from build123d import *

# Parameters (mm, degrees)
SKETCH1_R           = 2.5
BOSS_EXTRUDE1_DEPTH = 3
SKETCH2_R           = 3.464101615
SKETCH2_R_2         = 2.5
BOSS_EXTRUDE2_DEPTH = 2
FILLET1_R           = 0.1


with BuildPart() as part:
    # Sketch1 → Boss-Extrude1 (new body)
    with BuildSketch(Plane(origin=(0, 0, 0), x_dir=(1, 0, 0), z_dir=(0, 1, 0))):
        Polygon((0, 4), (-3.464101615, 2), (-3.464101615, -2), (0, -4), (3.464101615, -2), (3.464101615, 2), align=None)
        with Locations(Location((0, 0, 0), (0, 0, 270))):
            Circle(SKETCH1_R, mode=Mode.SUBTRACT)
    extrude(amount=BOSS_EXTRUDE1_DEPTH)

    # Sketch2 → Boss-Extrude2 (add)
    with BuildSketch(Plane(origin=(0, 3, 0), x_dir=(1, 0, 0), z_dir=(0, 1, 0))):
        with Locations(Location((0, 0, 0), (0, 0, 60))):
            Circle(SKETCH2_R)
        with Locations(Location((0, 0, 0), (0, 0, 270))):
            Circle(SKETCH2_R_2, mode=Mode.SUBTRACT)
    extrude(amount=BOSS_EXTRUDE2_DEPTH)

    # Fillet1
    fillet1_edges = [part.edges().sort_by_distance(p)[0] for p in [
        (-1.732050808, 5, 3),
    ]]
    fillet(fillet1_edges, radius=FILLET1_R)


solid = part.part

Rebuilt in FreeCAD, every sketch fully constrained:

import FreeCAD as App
import Part
import Sketcher
Q = App.Units.Quantity


def edges_at(feature, points):
    """Names of the edges that pass closest to the given points."""
    edges = feature.Shape.Edges
    near = lambda p: min(range(len(edges)), key=lambda i: edges[i].distToShape(Part.Vertex(*p))[0])
    return sorted({f"Edge{near(p) + 1}" for p in points})

doc = App.newDocument("Part")
params = doc.addObject("Spreadsheet::Sheet", "Params")
for row, (alias, value) in enumerate([
    ("sketch1_diameter", "5 mm"),
    ("sketch1_height", "4 mm"),
    ("sketch1_length", "4 mm"),
    ("pad1_length", "3 mm"),
    ("sketch2_diameter", "5 mm"),
    ("pad2_length", "2 mm"),
    ("fillet_radius", "0.1 mm"),
], start=1):
    params.set(f"A{row}", alias)
    params.set(f"B{row}", "=" + value)
    params.setAlias(f"B{row}", alias)

body = doc.addObject("PartDesign::Body", "Body")

sketch1 = body.newObject("Sketcher::SketchObject", "Sketch")
sketch1.AttachmentSupport = (doc.getObject("XZ_Plane"), [""])
sketch1.MapMode = "FlatFace"
sketch1.addGeometry([
    Part.LineSegment(App.Vector(0, -4, 0), App.Vector(-3.5, -2, 0)),
    Part.LineSegment(App.Vector(-3.5, -2, 0), App.Vector(-3.5, 2, 0)),
    Part.LineSegment(App.Vector(-3.5, 2, 0), App.Vector(0, 4, 0)),
    Part.LineSegment(App.Vector(0, 4, 0), App.Vector(3.5, 2, 0)),
    Part.LineSegment(App.Vector(3.5, 2, 0), App.Vector(3.5, -2, 0)),
    Part.LineSegment(App.Vector(3.5, -2, 0), App.Vector(0, -4, 0)),
    Part.Circle(App.Vector(0, 0, 0), App.Vector(0, 0, 1), 2.5),
], False)
sketch1.addConstraint([
    Sketcher.Constraint("Coincident", 0, 2, 1, 1),
    Sketcher.Constraint("Coincident", 1, 2, 2, 1),
    Sketcher.Constraint("Coincident", 2, 2, 3, 1),
    Sketcher.Constraint("Coincident", 3, 2, 4, 1),
    Sketcher.Constraint("Coincident", 4, 2, 5, 1),
    Sketcher.Constraint("Coincident", 5, 2, 0, 1),
    Sketcher.Constraint("Vertical", 1),
    Sketcher.Constraint("Vertical", 4),
    Sketcher.Constraint("Coincident", 6, 3, -1, 1),
    Sketcher.Constraint("Symmetric", 0, 2, 3, 2, -1, 1),
    Sketcher.Constraint("Symmetric", 2, 2, 5, 2, -1, 1),
    Sketcher.Constraint("PointOnObject", 2, 2, -2),
    Sketcher.Constraint("Parallel", 2, 5),
    Sketcher.Constraint("Horizontal", 1, 2, 3, 2),
    Sketcher.Constraint("Diameter", 6, Q("5 mm")),
    Sketcher.Constraint("DistanceY", 1, 1, 1, 2, Q("4 mm")),
    Sketcher.Constraint("Angle", 0, Q("150 deg")),
    Sketcher.Constraint("Distance", 0, Q("4 mm")),
])
sketch1.setExpression("Constraints[14]", "Params.sketch1_diameter")
sketch1.setExpression("Constraints[15]", "Params.sketch1_height")
sketch1.setExpression("Constraints[17]", "Params.sketch1_length")
pad1 = body.newObject("PartDesign::Pad", "Pad")
pad1.Profile = sketch1
pad1.setExpression("Length", "Params.pad1_length")
pad1.Reversed = True

sketch2 = body.newObject("Sketcher::SketchObject", "Sketch001")
sketch2.AttachmentSupport = (doc.getObject("XZ_Plane"), [""])
sketch2.MapMode = "FlatFace"
sketch2.AttachmentOffset = App.Placement(App.Vector(0, 0, -3), App.Rotation())
sketch2.addGeometry([
    Part.Circle(App.Vector(0, 0, 0), App.Vector(0, 0, 1), 3.5),
    Part.Circle(App.Vector(0, 0, 0), App.Vector(0, 0, 1), 2.5),
], False)
sketch2.addConstraint([
    Sketcher.Constraint("Coincident", 0, 3, -1, 1),
    Sketcher.Constraint("Coincident", 1, 3, -1, 1),
    Sketcher.Constraint("Diameter", 1, Q("5 mm")),
    Sketcher.Constraint("Diameter", 0, Q("6.928203 mm")),
])
sketch2.setExpression("Constraints[2]", "Params.sketch2_diameter")
pad2 = body.newObject("PartDesign::Pad", "Pad001")
pad2.Profile = sketch2
pad2.setExpression("Length", "Params.pad2_length")
pad2.Reversed = True
doc.recompute()

fillet = body.newObject("PartDesign::Fillet", "Fillet")
fillet.Base = (pad2, edges_at(pad2, [(-1.732, 5, 3)]))
fillet.setExpression("Radius", "Params.fillet_radius")

doc.recompute()
